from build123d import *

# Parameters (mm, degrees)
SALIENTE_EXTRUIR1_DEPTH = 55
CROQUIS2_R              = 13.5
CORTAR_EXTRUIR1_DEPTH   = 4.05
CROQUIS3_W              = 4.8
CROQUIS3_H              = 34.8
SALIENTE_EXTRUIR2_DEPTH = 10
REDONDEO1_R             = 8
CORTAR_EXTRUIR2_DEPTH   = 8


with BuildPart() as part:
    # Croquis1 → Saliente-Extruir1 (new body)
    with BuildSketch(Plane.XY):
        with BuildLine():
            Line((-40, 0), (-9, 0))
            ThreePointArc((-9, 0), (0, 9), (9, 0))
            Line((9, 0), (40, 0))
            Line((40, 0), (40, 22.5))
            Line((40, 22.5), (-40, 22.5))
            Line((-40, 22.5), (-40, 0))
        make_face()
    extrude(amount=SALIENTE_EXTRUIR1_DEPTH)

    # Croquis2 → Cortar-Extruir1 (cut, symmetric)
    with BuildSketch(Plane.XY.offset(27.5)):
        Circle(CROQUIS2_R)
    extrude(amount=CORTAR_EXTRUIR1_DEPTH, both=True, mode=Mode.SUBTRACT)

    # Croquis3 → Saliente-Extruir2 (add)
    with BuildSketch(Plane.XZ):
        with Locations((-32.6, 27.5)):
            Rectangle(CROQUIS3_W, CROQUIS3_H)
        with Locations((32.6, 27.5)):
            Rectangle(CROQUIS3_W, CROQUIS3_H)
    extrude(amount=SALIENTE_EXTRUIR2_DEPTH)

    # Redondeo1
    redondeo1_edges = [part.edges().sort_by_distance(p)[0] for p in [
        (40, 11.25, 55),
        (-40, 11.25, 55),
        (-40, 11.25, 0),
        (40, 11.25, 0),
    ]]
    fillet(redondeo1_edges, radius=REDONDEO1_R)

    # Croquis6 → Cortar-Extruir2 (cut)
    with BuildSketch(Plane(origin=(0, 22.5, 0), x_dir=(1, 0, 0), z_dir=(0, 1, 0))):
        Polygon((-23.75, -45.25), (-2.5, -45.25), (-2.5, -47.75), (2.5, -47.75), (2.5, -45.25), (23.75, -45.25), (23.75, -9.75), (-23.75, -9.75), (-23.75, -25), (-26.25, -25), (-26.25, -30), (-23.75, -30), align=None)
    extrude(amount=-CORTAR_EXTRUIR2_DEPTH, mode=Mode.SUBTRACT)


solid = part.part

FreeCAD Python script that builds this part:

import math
import FreeCAD as App
import Part
import Sketcher

V = App.Vector
Q = App.Units.Quantity


def edges_at(feature, points):
    """Names of the edges that pass closest to the given points."""
    edges = feature.Shape.Edges
    near = lambda p: min(range(len(edges)), key=lambda i: edges[i].distToShape(Part.Vertex(*p))[0])
    return sorted({f"Edge{near(p) + 1}" for p in points})


def add_polygon(sketch, points):
    """Adds a closed chain of lines whose ends are joined by coincident constraints."""
    first, n = sketch.GeometryCount, len(points)
    for a, b in zip(points, points[1:] + points[:1]):
        sketch.addGeometry(Part.LineSegment(App.Vector(*a, 0), App.Vector(*b, 0)), False)
    for i in range(n):
        sketch.addConstraint(Sketcher.Constraint("Coincident", first + i, 2, first + (i + 1) % n, 1))

doc = App.newDocument("Part")
body = doc.addObject("PartDesign::Body", "Body")

# Sketch on XY plane
sketch1 = body.newObject("Sketcher::SketchObject", "Sketch")
sketch1.AttachmentSupport = (doc.getObject("XY_Plane"), [""])
sketch1.MapMode = "FlatFace"
sketch1.addGeometry([
    Part.LineSegment(V(-40, 0, 0), V(-9, 0, 0)),  # 0
    Part.ArcOfCircle(Part.Circle(V(0, 0, 0), V(0, 0, 1), 9), math.radians(0), math.radians(180)),  # 1
    Part.LineSegment(V(9, 0, 0), V(40, 0, 0)),  # 2
    Part.LineSegment(V(40, 0, 0), V(40, 22.5, 0)),  # 3
    Part.LineSegment(V(40, 22.5, 0), V(-40, 22.5, 0)),  # 4
    Part.LineSegment(V(-40, 22.5, 0), V(-40, 0, 0)),  # 5
], False)
sketch1.addConstraint([
    Sketcher.Constraint("Coincident", 0, 2, 1, 2),
    Sketcher.Constraint("Coincident", 1, 1, 2, 1),
    Sketcher.Constraint("Coincident", 2, 2, 3, 1),
    Sketcher.Constraint("Coincident", 3, 2, 4, 1),
    Sketcher.Constraint("Coincident", 4, 2, 5, 1),
    Sketcher.Constraint("Coincident", 5, 2, 0, 1),
    Sketcher.Constraint("Horizontal", 0),
    Sketcher.Constraint("Horizontal", 2),
    Sketcher.Constraint("Vertical", 3),
    Sketcher.Constraint("Horizontal", 4),
    Sketcher.Constraint("Vertical", 5),
    Sketcher.Constraint("Coincident", 1, 3, -1, 1),
    Sketcher.Constraint("Symmetric", 2, 2, 5, 2, -1, 1),
    Sketcher.Constraint("PointOnObject", 0, 2, -1),
    Sketcher.Constraint("Radius", 1, Q("9 mm")),
    Sketcher.Constraint("DistanceX", 0, 1, 0, 2, Q("31 mm")),
    Sketcher.Constraint("DistanceY", 3, 1, 3, 2, Q("22.5 mm")),
])
pad1 = body.newObject("PartDesign::Pad", "Pad")
pad1.Profile = sketch1
pad1.Length = 55

# Sketch on XY plane
sketch2 = body.newObject("Sketcher::SketchObject", "Sketch001")
sketch2.AttachmentSupport = (doc.getObject("XY_Plane"), [""])
sketch2.MapMode = "FlatFace"
sketch2.AttachmentOffset = App.Placement(V(0, 0, 27.5), App.Rotation())
sketch2.addGeometry(Part.Circle(V(0, 0, 0), V(0, 0, 1), 13.5), False)
sketch2.addConstraint([
    Sketcher.Constraint("Coincident", 0, 3, -1, 1),
    Sketcher.Constraint("Diameter", 0, Q("27 mm")),
])
pocket1 = body.newObject("PartDesign::Pocket", "Pocket")
pocket1.Profile = sketch2
pocket1.Length = 8.1
pocket1.Midplane = True

# Sketch on XZ plane
sketch3 = body.newObject("Sketcher::SketchObject", "Sketch002")
sketch3.AttachmentSupport = (doc.getObject("XZ_Plane"), [""])
sketch3.MapMode = "FlatFace"
add_polygon(sketch3, [(-35, 44.9), (-35, 10.1), (-30.2, 10.1), (-30.2, 44.9)])  # lines 0-3
add_polygon(sketch3, [(30.2, 44.9), (30.2, 10.1), (35, 10.1), (35, 44.9)])  # lines 4-7
sketch3.addConstraint([
    Sketcher.Constraint("Vertical", 0),
    Sketcher.Constraint("Horizontal", 1),
    Sketcher.Constraint("Vertical", 2),
    Sketcher.Constraint("Horizontal", 3),
    Sketcher.Constraint("Vertical", 4),
    Sketcher.Constraint("Horizontal", 5),
    Sketcher.Constraint("Vertical", 6),
    Sketcher.Constraint("Horizontal", 7),
    Sketcher.Constraint("Symmetric", 1, 2, 4, 2, -2),
    Sketcher.Constraint("Symmetric", 3, 2, 6, 2, -2),
    Sketcher.Constraint("DistanceX", 1, 1, 1, 2, Q("4.8 mm")),
    Sketcher.Constraint("DistanceY", 0, 2, 0, 1, Q("34.8 mm")),
    Sketcher.Constraint("DistanceX", 0, 2, -1, 1, Q("35 mm")),
    Sketcher.Constraint("DistanceY", -1, 1, 0, 2, Q("10.1 mm")),
])
pad2 = body.newObject("PartDesign::Pad", "Pad001")
pad2.Profile = sketch3
pad2.Length = 10
doc.recompute()

fillet = body.newObject("PartDesign::Fillet", "Fillet")
fillet.Base = (pad2, edges_at(pad2, [
    (40, 11.25, 55),
    (-40, 11.25, 55),
    (-40, 11.25, 0),
    (40, 11.25, 0),
]))
fillet.Radius = 8

# Sketch on XZ plane
sketch4 = body.newObject("Sketcher::SketchObject", "Sketch003")
sketch4.AttachmentSupport = (doc.getObject("XZ_Plane"), [""])
sketch4.MapMode = "FlatFace"
sketch4.AttachmentOffset = App.Placement(V(0, 0, -22.5), App.Rotation())
add_polygon(sketch4, [(-23.75, 45.25), (-2.5, 45.25), (-2.5, 47.75), (2.5, 47.75), (2.5, 45.25), (23.75, 45.25), (23.75, 9.75), (-23.75, 9.75), (-23.75, 25), (-26.25, 25), (-26.25, 30), (-23.75, 30)])  # lines 0-11
sketch4.addConstraint([
    Sketcher.Constraint("Horizontal", 0),
    Sketcher.Constraint("Vertical", 1),
    Sketcher.Constraint("Horizontal", 2),
    Sketcher.Constraint("Vertical", 3),
    Sketcher.Constraint("Horizontal", 4),
    Sketcher.Constraint("Vertical", 5),
    Sketcher.Constraint("Horizontal", 6),
    Sketcher.Constraint("Vertical", 7),
    Sketcher.Constraint("Horizontal", 8),
    Sketcher.Constraint("Vertical", 9),
    Sketcher.Constraint("Horizontal", 10),
    Sketcher.Constraint("Vertical", 11),
    Sketcher.Constraint("Symmetric", 0, 2, 3, 2, -2),
    Sketcher.Constraint("Vertical", 7, 2, 10, 2),
    Sketcher.Constraint("Equal", 0, 4),
    Sketcher.Constraint("Equal", 10, 1),
    Sketcher.Constraint("Equal", 2, 9),
    Sketcher.Constraint("Equal", 7, 11),
    Sketcher.Constraint("DistanceX", 2, 1, 2, 2, Q("5 mm")),
    Sketcher.Constraint("DistanceX", 6, 2, 6, 1, Q("47.5 mm")),
    Sketcher.Constraint("DistanceX", 8, 2, 8, 1, Q("2.5 mm")),
    Sketcher.Constraint("DistanceY", 5, 2, 5, 1, Q("35.5 mm")),
    Sketcher.Constraint("DistanceY", -1, 1, 7, 2, Q("25 mm")),
])
pocket2 = body.newObject("PartDesign::Pocket", "Pocket001")
pocket2.Profile = sketch4
pocket2.Length = 8
pocket2.Reversed = True

doc.recompute()
